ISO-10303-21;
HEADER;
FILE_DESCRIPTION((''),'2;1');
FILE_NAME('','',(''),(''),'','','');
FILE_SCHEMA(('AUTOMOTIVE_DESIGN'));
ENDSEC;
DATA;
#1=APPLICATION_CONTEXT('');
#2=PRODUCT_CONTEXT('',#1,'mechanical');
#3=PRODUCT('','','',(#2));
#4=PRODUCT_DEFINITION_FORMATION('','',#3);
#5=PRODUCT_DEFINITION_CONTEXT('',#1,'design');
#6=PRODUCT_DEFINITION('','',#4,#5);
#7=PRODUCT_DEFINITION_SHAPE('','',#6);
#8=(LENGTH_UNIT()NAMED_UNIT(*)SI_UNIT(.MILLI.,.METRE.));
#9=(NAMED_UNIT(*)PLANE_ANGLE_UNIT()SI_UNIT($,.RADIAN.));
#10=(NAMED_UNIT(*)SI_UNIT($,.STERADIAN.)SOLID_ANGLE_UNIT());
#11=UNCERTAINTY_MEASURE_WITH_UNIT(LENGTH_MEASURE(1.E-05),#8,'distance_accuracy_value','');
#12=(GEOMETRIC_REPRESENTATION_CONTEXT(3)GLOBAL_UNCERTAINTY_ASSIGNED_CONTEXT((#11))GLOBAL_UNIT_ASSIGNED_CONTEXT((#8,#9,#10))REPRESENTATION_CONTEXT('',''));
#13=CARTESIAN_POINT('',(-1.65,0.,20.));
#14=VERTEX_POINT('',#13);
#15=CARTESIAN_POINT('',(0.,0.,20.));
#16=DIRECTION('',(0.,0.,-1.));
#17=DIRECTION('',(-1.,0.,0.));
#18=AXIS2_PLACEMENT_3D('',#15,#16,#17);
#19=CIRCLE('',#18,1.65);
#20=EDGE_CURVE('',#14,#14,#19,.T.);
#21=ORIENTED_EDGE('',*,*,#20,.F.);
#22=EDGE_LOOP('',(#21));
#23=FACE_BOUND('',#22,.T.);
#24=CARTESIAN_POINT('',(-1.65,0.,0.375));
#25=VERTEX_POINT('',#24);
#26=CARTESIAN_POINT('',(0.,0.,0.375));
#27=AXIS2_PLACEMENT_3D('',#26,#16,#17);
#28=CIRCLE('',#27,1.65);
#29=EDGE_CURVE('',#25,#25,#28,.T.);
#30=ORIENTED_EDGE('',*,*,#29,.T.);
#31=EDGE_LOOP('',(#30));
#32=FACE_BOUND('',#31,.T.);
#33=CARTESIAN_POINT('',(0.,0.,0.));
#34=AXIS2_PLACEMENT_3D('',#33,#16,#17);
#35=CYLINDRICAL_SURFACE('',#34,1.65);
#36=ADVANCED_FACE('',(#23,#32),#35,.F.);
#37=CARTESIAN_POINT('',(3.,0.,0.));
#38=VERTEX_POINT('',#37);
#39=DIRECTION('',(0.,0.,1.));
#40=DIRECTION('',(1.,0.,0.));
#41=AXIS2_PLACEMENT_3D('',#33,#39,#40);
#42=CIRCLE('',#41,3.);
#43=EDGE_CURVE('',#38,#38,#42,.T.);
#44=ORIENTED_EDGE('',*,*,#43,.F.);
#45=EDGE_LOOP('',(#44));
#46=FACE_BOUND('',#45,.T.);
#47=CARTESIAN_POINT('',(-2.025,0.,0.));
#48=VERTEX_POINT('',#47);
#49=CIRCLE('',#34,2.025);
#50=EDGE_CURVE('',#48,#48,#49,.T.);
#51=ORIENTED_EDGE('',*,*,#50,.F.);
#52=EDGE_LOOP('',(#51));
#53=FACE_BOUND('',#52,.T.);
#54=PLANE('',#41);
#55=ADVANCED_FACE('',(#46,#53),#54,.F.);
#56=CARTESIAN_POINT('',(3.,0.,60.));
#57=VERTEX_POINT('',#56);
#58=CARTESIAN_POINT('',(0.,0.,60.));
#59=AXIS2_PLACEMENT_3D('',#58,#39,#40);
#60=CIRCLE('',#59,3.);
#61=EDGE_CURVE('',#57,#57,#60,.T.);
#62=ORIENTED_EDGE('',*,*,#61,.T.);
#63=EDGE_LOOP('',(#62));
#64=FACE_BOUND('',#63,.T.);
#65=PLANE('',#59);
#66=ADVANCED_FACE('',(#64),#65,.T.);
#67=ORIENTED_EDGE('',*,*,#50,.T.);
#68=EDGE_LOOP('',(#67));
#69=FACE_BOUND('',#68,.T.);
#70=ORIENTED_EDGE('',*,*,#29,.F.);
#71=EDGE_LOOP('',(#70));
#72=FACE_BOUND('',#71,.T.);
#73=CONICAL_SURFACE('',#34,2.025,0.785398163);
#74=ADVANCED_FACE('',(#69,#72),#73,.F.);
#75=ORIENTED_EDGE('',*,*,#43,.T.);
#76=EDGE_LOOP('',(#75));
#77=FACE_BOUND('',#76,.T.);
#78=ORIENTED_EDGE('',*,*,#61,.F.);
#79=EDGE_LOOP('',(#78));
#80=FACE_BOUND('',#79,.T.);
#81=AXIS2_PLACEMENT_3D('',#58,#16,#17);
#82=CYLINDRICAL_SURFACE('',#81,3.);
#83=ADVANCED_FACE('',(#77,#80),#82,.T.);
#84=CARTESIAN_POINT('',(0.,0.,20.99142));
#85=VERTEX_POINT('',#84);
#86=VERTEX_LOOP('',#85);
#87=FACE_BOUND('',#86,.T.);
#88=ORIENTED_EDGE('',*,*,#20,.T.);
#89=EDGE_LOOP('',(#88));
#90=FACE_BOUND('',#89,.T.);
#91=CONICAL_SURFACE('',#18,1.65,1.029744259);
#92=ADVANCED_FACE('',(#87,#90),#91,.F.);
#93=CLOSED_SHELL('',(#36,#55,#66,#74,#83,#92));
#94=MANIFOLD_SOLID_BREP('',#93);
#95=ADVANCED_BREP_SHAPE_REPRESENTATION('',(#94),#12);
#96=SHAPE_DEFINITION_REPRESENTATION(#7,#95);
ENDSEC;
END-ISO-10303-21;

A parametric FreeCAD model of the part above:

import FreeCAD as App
import Part
import Sketcher
Q = App.Units.Quantity

doc = App.newDocument("Part")
body = doc.addObject("PartDesign::Body", "Body")

# Sketch on XY plane
sketch1 = body.newObject("Sketcher::SketchObject", "Sketch")
sketch1.AttachmentSupport = (doc.getObject("XY_Plane"), [""])
sketch1.MapMode = "FlatFace"
sketch1.addGeometry(Part.Circle(App.Vector(0, 0, 0), App.Vector(0, 0, 1), 3), False)
sketch1.addConstraint([
    Sketcher.Constraint("Coincident", 0, 3, -1, 1),
    Sketcher.Constraint("Diameter", 0, Q("6 mm")),
])
pad1 = body.newObject("PartDesign::Pad", "Pad")
pad1.Profile = sketch1
pad1.Length = 60

# Sketch on XY plane
sketch2 = body.newObject("Sketcher::SketchObject", "Sketch001")
sketch2.AttachmentSupport = (doc.getObject("XY_Plane"), [""])
sketch2.MapMode = "FlatFace"
sketch2.addGeometry(Part.Circle(App.Vector(0, 0, 0), App.Vector(0, 0, 1), 1.6), False)
sketch2.addConstraint([
    Sketcher.Constraint("Coincident", 0, 3, -1, 1),
    Sketcher.Constraint("Diameter", 0, Q("3.3 mm")),
])
doc.recompute()
hole = body.newObject("PartDesign::Hole", "Hole")
hole.Profile = sketch2
hole.ThreadType = "None"
hole.Diameter = 3.3
hole.DepthType = "Dimension"
hole.Depth = 20
hole.DrillPoint = "Angled"
hole.DrillPointAngle = 118
hole.HoleCutType = "Countersink"
hole.HoleCutDiameter = 4.05
hole.HoleCutCountersinkAngle = 90
hole.Reversed = True

doc.recompute()
